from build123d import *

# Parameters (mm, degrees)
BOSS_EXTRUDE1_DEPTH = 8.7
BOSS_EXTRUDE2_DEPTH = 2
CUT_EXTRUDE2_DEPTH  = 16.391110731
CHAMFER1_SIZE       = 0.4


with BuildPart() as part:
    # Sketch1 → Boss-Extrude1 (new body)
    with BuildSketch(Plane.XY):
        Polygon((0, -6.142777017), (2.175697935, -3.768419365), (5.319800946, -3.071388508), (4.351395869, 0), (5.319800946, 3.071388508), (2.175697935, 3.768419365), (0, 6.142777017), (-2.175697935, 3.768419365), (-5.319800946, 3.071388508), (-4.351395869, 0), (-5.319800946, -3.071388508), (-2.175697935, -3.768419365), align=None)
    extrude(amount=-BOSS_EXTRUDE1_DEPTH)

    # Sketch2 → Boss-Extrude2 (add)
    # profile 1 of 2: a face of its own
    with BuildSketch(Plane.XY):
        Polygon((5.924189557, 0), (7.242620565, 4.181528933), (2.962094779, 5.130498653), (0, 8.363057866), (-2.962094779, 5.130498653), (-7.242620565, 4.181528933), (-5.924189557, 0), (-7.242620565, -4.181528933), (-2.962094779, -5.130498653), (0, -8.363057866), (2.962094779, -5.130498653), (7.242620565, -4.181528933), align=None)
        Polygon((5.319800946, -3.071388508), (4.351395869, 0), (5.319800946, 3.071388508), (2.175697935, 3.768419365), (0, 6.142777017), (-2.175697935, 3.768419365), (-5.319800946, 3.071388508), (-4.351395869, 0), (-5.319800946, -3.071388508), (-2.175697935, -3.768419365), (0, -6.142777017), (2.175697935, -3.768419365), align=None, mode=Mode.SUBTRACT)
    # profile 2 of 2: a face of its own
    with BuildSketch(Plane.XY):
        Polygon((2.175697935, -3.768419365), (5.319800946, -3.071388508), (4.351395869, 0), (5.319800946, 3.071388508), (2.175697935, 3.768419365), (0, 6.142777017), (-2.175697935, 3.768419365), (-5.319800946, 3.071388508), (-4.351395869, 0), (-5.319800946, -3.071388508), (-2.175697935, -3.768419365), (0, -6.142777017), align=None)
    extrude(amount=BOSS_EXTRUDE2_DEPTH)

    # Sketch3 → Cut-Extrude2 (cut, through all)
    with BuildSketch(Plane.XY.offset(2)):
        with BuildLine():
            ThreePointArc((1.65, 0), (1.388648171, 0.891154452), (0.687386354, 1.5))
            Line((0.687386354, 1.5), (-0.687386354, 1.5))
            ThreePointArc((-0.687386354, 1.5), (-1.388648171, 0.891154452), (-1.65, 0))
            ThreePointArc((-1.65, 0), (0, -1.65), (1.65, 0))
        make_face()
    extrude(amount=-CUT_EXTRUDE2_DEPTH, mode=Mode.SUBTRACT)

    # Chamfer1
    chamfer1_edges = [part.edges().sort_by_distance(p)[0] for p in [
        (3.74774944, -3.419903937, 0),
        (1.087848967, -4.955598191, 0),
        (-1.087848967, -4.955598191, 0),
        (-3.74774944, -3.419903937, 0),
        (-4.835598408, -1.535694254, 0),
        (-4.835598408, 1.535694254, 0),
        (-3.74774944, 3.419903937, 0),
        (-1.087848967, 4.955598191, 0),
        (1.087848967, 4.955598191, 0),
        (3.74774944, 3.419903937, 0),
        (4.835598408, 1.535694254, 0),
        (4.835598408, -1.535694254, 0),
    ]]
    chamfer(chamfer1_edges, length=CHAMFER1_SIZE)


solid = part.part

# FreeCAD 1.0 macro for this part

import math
import FreeCAD as App
import Part
import Sketcher
Q = App.Units.Quantity


def edges_at(feature, points):
    """Names of the edges that pass closest to the given points."""
    edges = feature.Shape.Edges
    near = lambda p: min(range(len(edges)), key=lambda i: edges[i].distToShape(Part.Vertex(*p))[0])
    return sorted({f"Edge{near(p) + 1}" for p in points})


def add_polygon(sketch, points):
    """Adds a closed chain of lines whose ends are joined by coincident constraints."""
    first, n = sketch.GeometryCount, len(points)
    for a, b in zip(points, points[1:] + points[:1]):
        sketch.addGeometry(Part.LineSegment(App.Vector(*a, 0), App.Vector(*b, 0)), False)
    for i in range(n):
        sketch.addConstraint(Sketcher.Constraint("Coincident", first + i, 2, first + (i + 1) % n, 1))

doc = App.newDocument("Part")
body = doc.addObject("PartDesign::Body", "Body")

sketch1 = body.newObject("Sketcher::SketchObject", "Sketch")
sketch1.AttachmentSupport = (doc.getObject("XY_Plane"), [""])
sketch1.MapMode = "FlatFace"
add_polygon(sketch1, [(0, -6.1), (2.2, -3.8), (5.3, -3.1), (4.4, 0), (5.3, 3.1), (2.2, 3.8), (0, 6.1), (-2.2, 3.8), (-5.3, 3.1), (-4.4, 0), (-5.3, -3.1), (-2.2, -3.8)])
sketch1.addConstraint([
    Sketcher.Constraint("Symmetric", 0, 2, 6, 2, -1, 1),
    Sketcher.Constraint("Symmetric", 1, 2, 7, 2, -1, 1),
    Sketcher.Constraint("Symmetric", 2, 2, 8, 2, -1, 1),
    Sketcher.Constraint("Symmetric", 3, 2, 9, 2, -1, 1),
    Sketcher.Constraint("Symmetric", 4, 2, 10, 2, -1, 1),
    Sketcher.Constraint("Symmetric", 5, 2, 11, 2, -1, 1),
    Sketcher.Constraint("Symmetric", 4, 2, 6, 2, -2),
    Sketcher.Constraint("Symmetric", 3, 2, 7, 2, -2),
    Sketcher.Constraint("PointOnObject", 2, 2, -1),
    Sketcher.Constraint("PointOnObject", 5, 2, -2),
    Sketcher.Constraint("Equal", 0, 1),
    Sketcher.Constraint("Equal", 1, 2),
    Sketcher.Constraint("Angle", 0, Q("47.5 deg")),
    Sketcher.Constraint("Angle", 1, Q("12.5 deg")),
    Sketcher.Constraint("Angle", 2, Q("107.5 deg")),
    Sketcher.Constraint("DistanceX", -1, 1, 1, 2, Q("5.319801 mm")),
])
pad1 = body.newObject("PartDesign::Pad", "Pad")
pad1.Profile = sketch1
pad1.Length = 8.7
pad1.Reversed = True

sketch2 = body.newObject("Sketcher::SketchObject", "Sketch001")
sketch2.AttachmentSupport = (doc.getObject("XY_Plane"), [""])
sketch2.MapMode = "FlatFace"
add_polygon(sketch2, [(5.9, 0), (7.2, 4.2), (3, 5.1), (0, 8.4), (-3, 5.1), (-7.2, 4.2), (-5.9, 0), (-7.2, -4.2), (-3, -5.1), (0, -8.4), (3, -5.1), (7.2, -4.2)])
sketch2.addConstraint([
    Sketcher.Constraint("Symmetric", 0, 2, 6, 2, -1, 1),
    Sketcher.Constraint("Symmetric", 1, 2, 7, 2, -1, 1),
    Sketcher.Constraint("Symmetric", 2, 2, 8, 2, -1, 1),
    Sketcher.Constraint("Symmetric", 3, 2, 9, 2, -1, 1),
    Sketcher.Constraint("Symmetric", 4, 2, 10, 2, -1, 1),
    Sketcher.Constraint("Symmetric", 5, 2, 11, 2, -1, 1),
    Sketcher.Constraint("Symmetric", 1, 2, 3, 2, -2),
    Sketcher.Constraint("Symmetric", 0, 2, 4, 2, -2),
    Sketcher.Constraint("PointOnObject", 2, 2, -2),
    Sketcher.Constraint("PointOnObject", 5, 2, -1),
    Sketcher.Constraint("Equal", 0, 1),
    Sketcher.Constraint("Equal", 1, 2),
    Sketcher.Constraint("Angle", 0, Q("72.5 deg")),
    Sketcher.Constraint("Angle", 1, Q("167.5 deg")),
    Sketcher.Constraint("Angle", 2, Q("132.5 deg")),
    Sketcher.Constraint("DistanceY", -1, 1, 1, 2, Q("5.130499 mm")),
])
pad2 = body.newObject("PartDesign::Pad", "Pad001")
pad2.Profile = sketch2
pad2.Length = 2

sketch3 = body.newObject("Sketcher::SketchObject", "Sketch002")
sketch3.AttachmentSupport = (doc.getObject("XY_Plane"), [""])
sketch3.MapMode = "FlatFace"
sketch3.AttachmentOffset = App.Placement(App.Vector(0, 0, 2), App.Rotation())
sketch3.addGeometry([
    Part.ArcOfCircle(Part.Circle(App.Vector(0, 0, 0), App.Vector(0, 0, 1), 1.6), math.radians(0), math.radians(65)),
    Part.LineSegment(App.Vector(0.7, 1.5, 0), App.Vector(-0.7, 1.5, 0)),
    Part.ArcOfCircle(Part.Circle(App.Vector(0, 0, 0), App.Vector(0, 0, 1), 1.6), math.radians(115), math.radians(180)),
    Part.ArcOfCircle(Part.Circle(App.Vector(0, 0, 0), App.Vector(0, 0, 1), 1.6), math.radians(180), math.radians(360)),
], False)
sketch3.addConstraint([
    Sketcher.Constraint("Coincident", 0, 2, 1, 1),
    Sketcher.Constraint("Coincident", 1, 2, 2, 1),
    Sketcher.Constraint("Tangent", 2, 2, 3, 1),
    Sketcher.Constraint("Tangent", 3, 2, 0, 1),
    Sketcher.Constraint("Horizontal", 1),
    Sketcher.Constraint("Coincident", 0, 3, -1, 1),
    Sketcher.Constraint("Equal", 0, 2),
    Sketcher.Constraint("Equal", 2, 3),
    Sketcher.Constraint("PointOnObject", 2, 2, -1),
    Sketcher.Constraint("PointOnObject", 3, 2, -1),
    Sketcher.Constraint("Radius", 0, Q("1.65 mm")),
    Sketcher.Constraint("DistanceY", -1, 1, 0, 2, Q("1.5 mm")),
])
pocket1 = body.newObject("PartDesign::Pocket", "Pocket")
pocket1.Profile = sketch3
pocket1.Type = "ThroughAll"
doc.recompute()

chamfer = body.newObject("PartDesign::Chamfer", "Chamfer")
chamfer.Base = (pocket1, edges_at(pocket1, [
    (3.748, -3.42, 0),
    (1.088, -4.956, 0),
    (-1.088, -4.956, 0),
    (-3.748, -3.42, 0),
    (-4.836, -1.536, 0),
    (-4.836, 1.536, 0),
    (-3.748, 3.42, 0),
    (-1.088, 4.956, 0),
    (1.088, 4.956, 0),
    (3.748, 3.42, 0),
    (4.836, 1.536, 0),
    (4.836, -1.536, 0),
]))
chamfer.Size = 0.4

doc.recompute()
